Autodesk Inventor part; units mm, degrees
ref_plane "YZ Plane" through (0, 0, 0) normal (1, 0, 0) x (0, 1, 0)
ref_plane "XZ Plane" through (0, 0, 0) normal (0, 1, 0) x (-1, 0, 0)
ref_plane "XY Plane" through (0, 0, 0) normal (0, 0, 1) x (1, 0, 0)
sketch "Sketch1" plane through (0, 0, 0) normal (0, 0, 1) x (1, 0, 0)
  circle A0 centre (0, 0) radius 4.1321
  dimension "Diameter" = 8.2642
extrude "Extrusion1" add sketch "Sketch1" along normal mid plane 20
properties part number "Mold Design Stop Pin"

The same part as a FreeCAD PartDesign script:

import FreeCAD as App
import Part
import Sketcher

V = App.Vector
Q = App.Units.Quantity

doc = App.newDocument("Part")
params = doc.addObject("Spreadsheet::Sheet", "Params")
for row, (alias, value) in enumerate([
    ("pad1_length", "20 mm"),
], start=1):
    params.set(f"A{row}", alias)
    params.set(f"B{row}", "=" + value)
    params.setAlias(f"B{row}", alias)

body = doc.addObject("PartDesign::Body", "Body")

# Sketch on XY plane
sketch1 = body.newObject("Sketcher::SketchObject", "Sketch")
sketch1.AttachmentSupport = (doc.getObject("XY_Plane"), [""])
sketch1.MapMode = "FlatFace"
sketch1.addGeometry(Part.Circle(V(0, 0, 0), V(0, 0, 1), 4.1), False)
sketch1.addConstraint([
    Sketcher.Constraint("Coincident", 0, 3, -1, 1),
    Sketcher.Constraint("Diameter", 0, Q("8.2642 mm")),
])
pad1 = body.newObject("PartDesign::Pad", "Pad")
pad1.Profile = sketch1
pad1.setExpression("Length", "Params.pad1_length")
pad1.Midplane = True

doc.recompute()
